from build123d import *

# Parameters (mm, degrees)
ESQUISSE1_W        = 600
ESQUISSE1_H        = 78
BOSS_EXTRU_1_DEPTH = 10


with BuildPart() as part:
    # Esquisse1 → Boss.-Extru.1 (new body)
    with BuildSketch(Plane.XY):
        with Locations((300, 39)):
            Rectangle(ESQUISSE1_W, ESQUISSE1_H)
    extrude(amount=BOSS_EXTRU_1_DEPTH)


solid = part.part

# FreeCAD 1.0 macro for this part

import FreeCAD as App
import Part
import Sketcher
from FreeCAD import Vector
Q = App.Units.Quantity

doc = App.newDocument("Part")
body = doc.addObject("PartDesign::Body", "Body")

# Sketch on XY plane
sketch1 = body.newObject("Sketcher::SketchObject", "Sketch")
sketch1.AttachmentSupport = (doc.getObject("XY_Plane"), [""])
sketch1.MapMode = "FlatFace"
sketch1.addGeometry([
    Part.LineSegment(Vector(0, 78, 0), Vector(0, 0, 0)),
    Part.LineSegment(Vector(0, 0, 0), Vector(600, 0, 0)),
    Part.LineSegment(Vector(600, 0, 0), Vector(600, 78, 0)),
    Part.LineSegment(Vector(600, 78, 0), Vector(0, 78, 0)),
], False)
sketch1.addConstraint([
    Sketcher.Constraint("Coincident", 0, 2, 1, 1),
    Sketcher.Constraint("Coincident", 1, 2, 2, 1),
    Sketcher.Constraint("Coincident", 2, 2, 3, 1),
    Sketcher.Constraint("Coincident", 3, 2, 0, 1),
    Sketcher.Constraint("Vertical", 0),
    Sketcher.Constraint("Horizontal", 1),
    Sketcher.Constraint("Vertical", 2),
    Sketcher.Constraint("Horizontal", 3),
    Sketcher.Constraint("Coincident", 0, 2, -1, 1),
    Sketcher.Constraint("DistanceX", 1, 1, 1, 2, Q("600 mm")),
    Sketcher.Constraint("DistanceY", 0, 2, 0, 1, Q("78 mm")),
])
pad1 = body.newObject("PartDesign::Pad", "Pad")
pad1.Profile = sketch1
pad1.Length = 10

doc.recompute()
